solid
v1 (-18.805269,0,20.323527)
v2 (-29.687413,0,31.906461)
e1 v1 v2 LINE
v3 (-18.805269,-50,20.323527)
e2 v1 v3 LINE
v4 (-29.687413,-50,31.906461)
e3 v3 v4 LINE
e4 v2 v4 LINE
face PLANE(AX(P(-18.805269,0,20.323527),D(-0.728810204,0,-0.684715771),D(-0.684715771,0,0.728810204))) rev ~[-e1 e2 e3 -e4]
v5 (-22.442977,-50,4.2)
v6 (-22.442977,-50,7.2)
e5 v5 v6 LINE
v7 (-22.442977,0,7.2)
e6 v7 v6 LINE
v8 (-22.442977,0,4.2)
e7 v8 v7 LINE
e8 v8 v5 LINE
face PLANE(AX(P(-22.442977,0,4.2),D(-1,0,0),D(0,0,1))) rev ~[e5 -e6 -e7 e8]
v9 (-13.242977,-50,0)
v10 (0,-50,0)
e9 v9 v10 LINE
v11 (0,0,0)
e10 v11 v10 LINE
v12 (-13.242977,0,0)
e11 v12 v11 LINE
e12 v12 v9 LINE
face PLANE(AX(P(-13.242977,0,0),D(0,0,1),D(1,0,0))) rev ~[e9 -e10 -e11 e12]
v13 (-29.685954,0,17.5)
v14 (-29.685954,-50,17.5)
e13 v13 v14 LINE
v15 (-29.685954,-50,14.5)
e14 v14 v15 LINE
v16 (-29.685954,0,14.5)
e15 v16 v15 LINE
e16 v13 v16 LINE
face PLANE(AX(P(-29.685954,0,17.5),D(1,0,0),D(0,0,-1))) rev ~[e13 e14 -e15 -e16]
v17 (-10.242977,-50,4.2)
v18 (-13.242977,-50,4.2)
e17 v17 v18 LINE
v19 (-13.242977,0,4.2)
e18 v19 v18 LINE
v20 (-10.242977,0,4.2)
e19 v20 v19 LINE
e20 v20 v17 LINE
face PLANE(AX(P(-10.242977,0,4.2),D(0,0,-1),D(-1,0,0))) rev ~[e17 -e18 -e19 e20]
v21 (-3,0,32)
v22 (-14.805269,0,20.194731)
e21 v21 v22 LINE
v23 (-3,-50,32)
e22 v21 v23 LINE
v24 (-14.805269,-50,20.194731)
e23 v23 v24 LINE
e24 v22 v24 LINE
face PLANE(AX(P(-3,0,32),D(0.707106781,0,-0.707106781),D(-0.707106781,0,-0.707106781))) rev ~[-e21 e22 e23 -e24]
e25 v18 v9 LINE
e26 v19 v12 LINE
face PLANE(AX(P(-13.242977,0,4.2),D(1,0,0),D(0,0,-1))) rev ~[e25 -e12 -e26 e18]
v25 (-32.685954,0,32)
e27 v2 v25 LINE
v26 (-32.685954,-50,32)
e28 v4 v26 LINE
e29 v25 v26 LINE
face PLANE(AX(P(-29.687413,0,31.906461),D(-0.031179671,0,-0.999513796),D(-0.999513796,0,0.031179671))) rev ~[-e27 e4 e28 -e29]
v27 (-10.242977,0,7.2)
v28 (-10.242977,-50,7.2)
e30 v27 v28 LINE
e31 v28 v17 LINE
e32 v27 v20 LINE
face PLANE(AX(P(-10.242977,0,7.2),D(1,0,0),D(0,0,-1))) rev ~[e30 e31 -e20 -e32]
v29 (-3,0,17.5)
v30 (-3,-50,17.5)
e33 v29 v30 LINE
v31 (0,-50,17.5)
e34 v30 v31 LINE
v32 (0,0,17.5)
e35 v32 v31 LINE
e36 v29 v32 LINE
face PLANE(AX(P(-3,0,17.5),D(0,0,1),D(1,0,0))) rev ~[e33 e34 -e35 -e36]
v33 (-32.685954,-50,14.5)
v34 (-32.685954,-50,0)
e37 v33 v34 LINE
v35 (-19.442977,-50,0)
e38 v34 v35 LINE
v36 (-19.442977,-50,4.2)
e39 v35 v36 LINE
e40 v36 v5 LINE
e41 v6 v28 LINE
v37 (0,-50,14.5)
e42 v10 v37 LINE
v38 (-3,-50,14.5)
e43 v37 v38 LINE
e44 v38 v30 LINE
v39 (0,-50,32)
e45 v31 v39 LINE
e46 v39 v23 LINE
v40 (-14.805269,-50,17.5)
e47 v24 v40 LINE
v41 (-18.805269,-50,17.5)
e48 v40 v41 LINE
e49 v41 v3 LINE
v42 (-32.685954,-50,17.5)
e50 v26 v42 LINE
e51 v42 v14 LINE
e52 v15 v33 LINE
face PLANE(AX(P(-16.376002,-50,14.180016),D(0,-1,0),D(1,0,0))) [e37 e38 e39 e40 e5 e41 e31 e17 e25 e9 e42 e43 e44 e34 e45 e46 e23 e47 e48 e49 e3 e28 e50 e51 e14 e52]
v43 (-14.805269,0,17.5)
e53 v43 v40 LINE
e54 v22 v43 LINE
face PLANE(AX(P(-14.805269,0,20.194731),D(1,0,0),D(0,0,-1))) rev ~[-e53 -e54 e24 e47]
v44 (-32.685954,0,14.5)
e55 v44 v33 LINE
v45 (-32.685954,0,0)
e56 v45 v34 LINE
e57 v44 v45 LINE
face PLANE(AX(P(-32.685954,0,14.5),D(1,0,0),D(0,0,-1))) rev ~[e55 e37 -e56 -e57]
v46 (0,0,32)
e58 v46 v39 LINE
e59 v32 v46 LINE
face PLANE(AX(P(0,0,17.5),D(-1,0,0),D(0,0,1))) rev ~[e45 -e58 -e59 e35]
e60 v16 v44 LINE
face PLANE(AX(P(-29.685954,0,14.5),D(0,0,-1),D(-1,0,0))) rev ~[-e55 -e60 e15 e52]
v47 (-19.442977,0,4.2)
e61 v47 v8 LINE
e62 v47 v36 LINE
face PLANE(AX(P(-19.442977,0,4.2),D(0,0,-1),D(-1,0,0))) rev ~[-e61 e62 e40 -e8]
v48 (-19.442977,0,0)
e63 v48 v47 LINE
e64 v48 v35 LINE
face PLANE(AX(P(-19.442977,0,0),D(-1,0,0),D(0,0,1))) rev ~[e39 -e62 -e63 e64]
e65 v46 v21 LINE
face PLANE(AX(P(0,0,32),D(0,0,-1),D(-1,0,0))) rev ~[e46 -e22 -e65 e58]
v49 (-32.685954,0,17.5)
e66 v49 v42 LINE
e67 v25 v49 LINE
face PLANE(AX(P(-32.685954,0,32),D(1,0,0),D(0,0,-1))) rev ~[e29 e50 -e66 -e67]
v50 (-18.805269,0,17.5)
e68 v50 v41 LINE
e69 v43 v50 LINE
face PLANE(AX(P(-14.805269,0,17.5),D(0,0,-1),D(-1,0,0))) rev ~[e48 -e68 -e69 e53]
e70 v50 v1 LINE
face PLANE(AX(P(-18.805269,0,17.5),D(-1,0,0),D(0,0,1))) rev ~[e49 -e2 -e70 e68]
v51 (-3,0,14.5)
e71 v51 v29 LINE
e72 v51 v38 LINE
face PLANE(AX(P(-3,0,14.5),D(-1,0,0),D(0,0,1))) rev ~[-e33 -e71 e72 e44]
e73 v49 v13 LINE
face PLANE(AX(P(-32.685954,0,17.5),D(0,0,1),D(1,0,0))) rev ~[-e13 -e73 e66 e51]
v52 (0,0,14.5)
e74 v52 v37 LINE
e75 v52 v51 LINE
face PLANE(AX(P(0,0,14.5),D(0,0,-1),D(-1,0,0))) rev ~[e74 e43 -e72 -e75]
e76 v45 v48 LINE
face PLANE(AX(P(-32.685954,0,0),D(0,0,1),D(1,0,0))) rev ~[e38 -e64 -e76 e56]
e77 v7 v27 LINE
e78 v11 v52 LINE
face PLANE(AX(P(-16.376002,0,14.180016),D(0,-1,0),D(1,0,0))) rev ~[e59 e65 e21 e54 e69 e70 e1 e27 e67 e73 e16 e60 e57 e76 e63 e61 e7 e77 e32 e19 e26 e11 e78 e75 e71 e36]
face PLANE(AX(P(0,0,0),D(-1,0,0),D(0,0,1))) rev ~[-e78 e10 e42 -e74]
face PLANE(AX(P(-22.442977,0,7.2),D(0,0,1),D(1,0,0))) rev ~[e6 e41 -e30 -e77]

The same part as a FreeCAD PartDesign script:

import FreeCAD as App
import Part
import Sketcher
from FreeCAD import Vector
Q = App.Units.Quantity


def add_polygon(sketch, points):
    """Adds a closed chain of lines whose ends are joined by coincident constraints."""
    first, n = sketch.GeometryCount, len(points)
    for a, b in zip(points, points[1:] + points[:1]):
        sketch.addGeometry(Part.LineSegment(App.Vector(*a, 0), App.Vector(*b, 0)), False)
    for i in range(n):
        sketch.addConstraint(Sketcher.Constraint("Coincident", first + i, 2, first + (i + 1) % n, 1))

doc = App.newDocument("Part")
body = doc.addObject("PartDesign::Body", "Body")

sketch1 = doc.addObject("Sketcher::SketchObject", "Sketch")
body.addObject(sketch1)
sketch1.AttachmentSupport = (doc.XZ_Plane, [""])
sketch1.MapMode = "FlatFace"
add_polygon(sketch1, [(-13.2, 0), (0, 0), (0, 14.5), (-3, 14.5), (-3, 17.5), (0, 17.5), (0, 32), (-3, 32), (-14.8, 20.2), (-14.8, 17.5), (-18.8, 17.5), (-18.8, 20.3), (-29.7, 31.9), (-32.7, 32), (-32.7, 17.5), (-29.7, 17.5), (-29.7, 14.5), (-32.7, 14.5), (-32.7, 0), (-19.4, 0), (-19.4, 4.2), (-22.4, 4.2), (-22.4, 7.2), (-10.2, 7.2), (-10.2, 4.2), (-13.2, 4.2)])
sketch1.addConstraint(Sketcher.Constraint("Horizontal", 0))
sketch1.addConstraint(Sketcher.Constraint("Vertical", 1))
sketch1.addConstraint(Sketcher.Constraint("Horizontal", 2))
sketch1.addConstraint(Sketcher.Constraint("Vertical", 3))
sketch1.addConstraint(Sketcher.Constraint("Horizontal", 4))
sketch1.addConstraint(Sketcher.Constraint("Vertical", 5))
sketch1.addConstraint(Sketcher.Constraint("Horizontal", 6))
sketch1.addConstraint(Sketcher.Constraint("Vertical", 8))
sketch1.addConstraint(Sketcher.Constraint("Horizontal", 9))
sketch1.addConstraint(Sketcher.Constraint("Vertical", 10))
sketch1.addConstraint(Sketcher.Constraint("Vertical", 13))
sketch1.addConstraint(Sketcher.Constraint("Horizontal", 14))
sketch1.addConstraint(Sketcher.Constraint("Vertical", 15))
sketch1.addConstraint(Sketcher.Constraint("Horizontal", 16))
sketch1.addConstraint(Sketcher.Constraint("Vertical", 17))
sketch1.addConstraint(Sketcher.Constraint("Horizontal", 18))
sketch1.addConstraint(Sketcher.Constraint("Vertical", 19))
sketch1.addConstraint(Sketcher.Constraint("Horizontal", 20))
sketch1.addConstraint(Sketcher.Constraint("Vertical", 21))
sketch1.addConstraint(Sketcher.Constraint("Horizontal", 22))
sketch1.addConstraint(Sketcher.Constraint("Vertical", 23))
sketch1.addConstraint(Sketcher.Constraint("Horizontal", 24))
sketch1.addConstraint(Sketcher.Constraint("Vertical", 25))
sketch1.addConstraint(Sketcher.Constraint("Coincident", 0, 2, -1, 1))
sketch1.addConstraint(Sketcher.Constraint("PointOnObject", 4, 2, -2))
sketch1.addConstraint(Sketcher.Constraint("PointOnObject", 17, 2, -1))
sketch1.addConstraint(Sketcher.Constraint("Horizontal", 4, 2, 8, 2))
sketch1.addConstraint(Sketcher.Constraint("Horizontal", 6, 2, 12, 2))
sketch1.addConstraint(Sketcher.Constraint("Horizontal", 9, 2, 13, 2))
sketch1.addConstraint(Sketcher.Constraint("Horizontal", 2, 2, 15, 2))
sketch1.addConstraint(Sketcher.Constraint("Horizontal", 20, 2, 23, 2))
sketch1.addConstraint(Sketcher.Constraint("Vertical", 3, 2, 6, 2))
sketch1.addConstraint(Sketcher.Constraint("Vertical", 13, 2, 16, 2))
sketch1.addConstraint(Sketcher.Constraint("Equal", 6, 14))
sketch1.addConstraint(Sketcher.Constraint("Equal", 0, 18))
sketch1.addConstraint(Sketcher.Constraint("Equal", 16, 20))
sketch1.addConstraint(Sketcher.Constraint("Equal", 20, 24))
sketch1.addConstraint(Sketcher.Constraint("Equal", 24, 3))
sketch1.addConstraint(Sketcher.Constraint("Equal", 1, 5))
sketch1.addConstraint(Sketcher.Constraint("Equal", 15, 21))
sketch1.addConstraint(Sketcher.Constraint("DistanceX", 2, 2, 2, 1, 3.0))
sketch1.addConstraint(Sketcher.Constraint("DistanceX", 9, 2, 9, 1, 4.0))
sketch1.addConstraint(Sketcher.Constraint("Angle", 7, Q("-135 deg")))
sketch1.addConstraint(Sketcher.Constraint("Distance", 12, 3.0))
sketch1.addConstraint(Sketcher.Constraint("DistanceX", 22, 1, 22, 2, 12.2))
sketch1.addConstraint(Sketcher.Constraint("DistanceY", 1, 1, 1, 2, 14.5))
sketch1.addConstraint(Sketcher.Constraint("DistanceY", 19, 1, 19, 2, 4.2))
sketch1.addConstraint(Sketcher.Constraint("DistanceY", 8, 2, 8, 1, 2.694731))
sketch1.addConstraint(Sketcher.Constraint("DistanceX", 0, 1, 0, 2, 13.242977))
sketch1.addConstraint(Sketcher.Constraint("DistanceY", 10, 1, 10, 2, 2.823527))
sketch1.addConstraint(Sketcher.Constraint("DistanceY", -1, 1, 11, 2, 31.906461))
pad1 = doc.addObject("PartDesign::Pad", "Pad")
body.addObject(pad1)
pad1.Profile = sketch1
pad1.Length = 50

doc.recompute()
